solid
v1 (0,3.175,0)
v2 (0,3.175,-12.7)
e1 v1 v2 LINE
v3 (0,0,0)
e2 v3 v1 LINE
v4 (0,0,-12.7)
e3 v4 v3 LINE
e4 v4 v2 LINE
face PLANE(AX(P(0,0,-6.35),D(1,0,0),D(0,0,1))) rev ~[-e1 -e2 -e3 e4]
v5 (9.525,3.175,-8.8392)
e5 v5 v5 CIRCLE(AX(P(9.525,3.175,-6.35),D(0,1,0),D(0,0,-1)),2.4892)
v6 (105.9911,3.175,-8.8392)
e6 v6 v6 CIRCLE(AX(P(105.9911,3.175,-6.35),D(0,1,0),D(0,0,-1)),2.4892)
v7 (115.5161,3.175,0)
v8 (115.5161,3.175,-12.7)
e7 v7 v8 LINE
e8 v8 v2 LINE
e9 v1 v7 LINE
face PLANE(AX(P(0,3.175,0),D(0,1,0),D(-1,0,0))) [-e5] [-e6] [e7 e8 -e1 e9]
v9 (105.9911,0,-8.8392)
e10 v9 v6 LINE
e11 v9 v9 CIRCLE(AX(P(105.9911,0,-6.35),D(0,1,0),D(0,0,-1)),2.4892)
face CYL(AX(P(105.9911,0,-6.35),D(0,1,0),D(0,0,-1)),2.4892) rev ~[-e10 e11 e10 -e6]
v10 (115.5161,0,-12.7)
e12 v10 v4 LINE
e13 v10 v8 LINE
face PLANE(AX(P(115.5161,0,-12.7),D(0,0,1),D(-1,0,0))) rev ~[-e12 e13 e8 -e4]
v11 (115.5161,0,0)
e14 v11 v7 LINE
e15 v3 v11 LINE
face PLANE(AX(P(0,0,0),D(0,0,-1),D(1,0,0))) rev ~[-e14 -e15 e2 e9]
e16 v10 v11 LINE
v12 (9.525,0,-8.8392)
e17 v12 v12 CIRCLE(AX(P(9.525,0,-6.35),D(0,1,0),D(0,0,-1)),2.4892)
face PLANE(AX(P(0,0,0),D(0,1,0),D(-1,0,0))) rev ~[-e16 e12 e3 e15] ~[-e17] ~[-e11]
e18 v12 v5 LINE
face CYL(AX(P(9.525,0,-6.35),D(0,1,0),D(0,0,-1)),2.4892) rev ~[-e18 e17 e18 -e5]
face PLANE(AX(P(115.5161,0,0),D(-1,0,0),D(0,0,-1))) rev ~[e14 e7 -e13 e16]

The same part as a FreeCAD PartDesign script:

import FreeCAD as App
import Part
import Sketcher
from FreeCAD import Vector
Q = App.Units.Quantity


def add_polygon(sketch, points):
    """Adds a closed chain of lines whose ends are joined by coincident constraints."""
    first, n = sketch.GeometryCount, len(points)
    for a, b in zip(points, points[1:] + points[:1]):
        sketch.addGeometry(Part.LineSegment(App.Vector(*a, 0), App.Vector(*b, 0)), False)
    for i in range(n):
        sketch.addConstraint(Sketcher.Constraint("Coincident", first + i, 2, first + (i + 1) % n, 1))

doc = App.newDocument("Part")
body = doc.addObject("PartDesign::Body", "Body")

# Sketch on XZ plane
sketch1 = body.newObject("Sketcher::SketchObject", "Sketch")
sketch1.AttachmentSupport = (doc.getObject("XZ_Plane"), [""])
sketch1.MapMode = "FlatFace"
add_polygon(sketch1, [(0, 0), (116, 0), (116, -13), (0, -13)])  # lines 0-3
sketch1.addConstraint(Sketcher.Constraint("Horizontal", 0))
sketch1.addConstraint(Sketcher.Constraint("Vertical", 1))
sketch1.addConstraint(Sketcher.Constraint("Horizontal", 2))
sketch1.addConstraint(Sketcher.Constraint("Vertical", 3))
sketch1.addConstraint(Sketcher.Constraint("Coincident", 3, 2, -1, 1))
sketch1.addConstraint(Sketcher.Constraint("DistanceY", 1, 2, 1, 1, Q("0.5 in")))
sketch1.addConstraint(Sketcher.Constraint("DistanceX", 0, 1, 0, 2, 115.516))
pad1 = body.newObject("PartDesign::Pad", "Pad")
pad1.Profile = sketch1
pad1.Length = Q("0.125 in")
pad1.Reversed = True

# Sketch on XZ plane
sketch2 = body.newObject("Sketcher::SketchObject", "Sketch001")
sketch2.AttachmentSupport = (doc.getObject("XZ_Plane"), [""])
sketch2.MapMode = "FlatFace"
sketch2.addGeometry(Part.Circle(Vector(9.5, -6.3, 0), Vector(0, 0, 1), 2.5), False)
sketch2.addGeometry(Part.Circle(Vector(106, -6.3, 0), Vector(0, 0, 1), 2.5), False)
sketch2.addConstraint(Sketcher.Constraint("Equal", 0, 1))
sketch2.addConstraint(Sketcher.Constraint("Horizontal", 0, 3, 1, 3))
sketch2.addConstraint(Sketcher.Constraint("Diameter", 0, Q("0.196 in")))
sketch2.addConstraint(Sketcher.Constraint("DistanceY", 0, 3, -1, 1, Q("0.25 in")))
sketch2.addConstraint(Sketcher.Constraint("DistanceX", -1, 1, 0, 3, Q("0.375 in")))
sketch2.addConstraint(Sketcher.Constraint("DistanceX", -1, 1, 1, 3, 105.991))
doc.recompute()
hole = body.newObject("PartDesign::Hole", "Hole")
hole.Profile = sketch2
hole.ThreadType = "None"
hole.Diameter = Q("0.196 in")
hole.DepthType = "ThroughAll"

doc.recompute()
